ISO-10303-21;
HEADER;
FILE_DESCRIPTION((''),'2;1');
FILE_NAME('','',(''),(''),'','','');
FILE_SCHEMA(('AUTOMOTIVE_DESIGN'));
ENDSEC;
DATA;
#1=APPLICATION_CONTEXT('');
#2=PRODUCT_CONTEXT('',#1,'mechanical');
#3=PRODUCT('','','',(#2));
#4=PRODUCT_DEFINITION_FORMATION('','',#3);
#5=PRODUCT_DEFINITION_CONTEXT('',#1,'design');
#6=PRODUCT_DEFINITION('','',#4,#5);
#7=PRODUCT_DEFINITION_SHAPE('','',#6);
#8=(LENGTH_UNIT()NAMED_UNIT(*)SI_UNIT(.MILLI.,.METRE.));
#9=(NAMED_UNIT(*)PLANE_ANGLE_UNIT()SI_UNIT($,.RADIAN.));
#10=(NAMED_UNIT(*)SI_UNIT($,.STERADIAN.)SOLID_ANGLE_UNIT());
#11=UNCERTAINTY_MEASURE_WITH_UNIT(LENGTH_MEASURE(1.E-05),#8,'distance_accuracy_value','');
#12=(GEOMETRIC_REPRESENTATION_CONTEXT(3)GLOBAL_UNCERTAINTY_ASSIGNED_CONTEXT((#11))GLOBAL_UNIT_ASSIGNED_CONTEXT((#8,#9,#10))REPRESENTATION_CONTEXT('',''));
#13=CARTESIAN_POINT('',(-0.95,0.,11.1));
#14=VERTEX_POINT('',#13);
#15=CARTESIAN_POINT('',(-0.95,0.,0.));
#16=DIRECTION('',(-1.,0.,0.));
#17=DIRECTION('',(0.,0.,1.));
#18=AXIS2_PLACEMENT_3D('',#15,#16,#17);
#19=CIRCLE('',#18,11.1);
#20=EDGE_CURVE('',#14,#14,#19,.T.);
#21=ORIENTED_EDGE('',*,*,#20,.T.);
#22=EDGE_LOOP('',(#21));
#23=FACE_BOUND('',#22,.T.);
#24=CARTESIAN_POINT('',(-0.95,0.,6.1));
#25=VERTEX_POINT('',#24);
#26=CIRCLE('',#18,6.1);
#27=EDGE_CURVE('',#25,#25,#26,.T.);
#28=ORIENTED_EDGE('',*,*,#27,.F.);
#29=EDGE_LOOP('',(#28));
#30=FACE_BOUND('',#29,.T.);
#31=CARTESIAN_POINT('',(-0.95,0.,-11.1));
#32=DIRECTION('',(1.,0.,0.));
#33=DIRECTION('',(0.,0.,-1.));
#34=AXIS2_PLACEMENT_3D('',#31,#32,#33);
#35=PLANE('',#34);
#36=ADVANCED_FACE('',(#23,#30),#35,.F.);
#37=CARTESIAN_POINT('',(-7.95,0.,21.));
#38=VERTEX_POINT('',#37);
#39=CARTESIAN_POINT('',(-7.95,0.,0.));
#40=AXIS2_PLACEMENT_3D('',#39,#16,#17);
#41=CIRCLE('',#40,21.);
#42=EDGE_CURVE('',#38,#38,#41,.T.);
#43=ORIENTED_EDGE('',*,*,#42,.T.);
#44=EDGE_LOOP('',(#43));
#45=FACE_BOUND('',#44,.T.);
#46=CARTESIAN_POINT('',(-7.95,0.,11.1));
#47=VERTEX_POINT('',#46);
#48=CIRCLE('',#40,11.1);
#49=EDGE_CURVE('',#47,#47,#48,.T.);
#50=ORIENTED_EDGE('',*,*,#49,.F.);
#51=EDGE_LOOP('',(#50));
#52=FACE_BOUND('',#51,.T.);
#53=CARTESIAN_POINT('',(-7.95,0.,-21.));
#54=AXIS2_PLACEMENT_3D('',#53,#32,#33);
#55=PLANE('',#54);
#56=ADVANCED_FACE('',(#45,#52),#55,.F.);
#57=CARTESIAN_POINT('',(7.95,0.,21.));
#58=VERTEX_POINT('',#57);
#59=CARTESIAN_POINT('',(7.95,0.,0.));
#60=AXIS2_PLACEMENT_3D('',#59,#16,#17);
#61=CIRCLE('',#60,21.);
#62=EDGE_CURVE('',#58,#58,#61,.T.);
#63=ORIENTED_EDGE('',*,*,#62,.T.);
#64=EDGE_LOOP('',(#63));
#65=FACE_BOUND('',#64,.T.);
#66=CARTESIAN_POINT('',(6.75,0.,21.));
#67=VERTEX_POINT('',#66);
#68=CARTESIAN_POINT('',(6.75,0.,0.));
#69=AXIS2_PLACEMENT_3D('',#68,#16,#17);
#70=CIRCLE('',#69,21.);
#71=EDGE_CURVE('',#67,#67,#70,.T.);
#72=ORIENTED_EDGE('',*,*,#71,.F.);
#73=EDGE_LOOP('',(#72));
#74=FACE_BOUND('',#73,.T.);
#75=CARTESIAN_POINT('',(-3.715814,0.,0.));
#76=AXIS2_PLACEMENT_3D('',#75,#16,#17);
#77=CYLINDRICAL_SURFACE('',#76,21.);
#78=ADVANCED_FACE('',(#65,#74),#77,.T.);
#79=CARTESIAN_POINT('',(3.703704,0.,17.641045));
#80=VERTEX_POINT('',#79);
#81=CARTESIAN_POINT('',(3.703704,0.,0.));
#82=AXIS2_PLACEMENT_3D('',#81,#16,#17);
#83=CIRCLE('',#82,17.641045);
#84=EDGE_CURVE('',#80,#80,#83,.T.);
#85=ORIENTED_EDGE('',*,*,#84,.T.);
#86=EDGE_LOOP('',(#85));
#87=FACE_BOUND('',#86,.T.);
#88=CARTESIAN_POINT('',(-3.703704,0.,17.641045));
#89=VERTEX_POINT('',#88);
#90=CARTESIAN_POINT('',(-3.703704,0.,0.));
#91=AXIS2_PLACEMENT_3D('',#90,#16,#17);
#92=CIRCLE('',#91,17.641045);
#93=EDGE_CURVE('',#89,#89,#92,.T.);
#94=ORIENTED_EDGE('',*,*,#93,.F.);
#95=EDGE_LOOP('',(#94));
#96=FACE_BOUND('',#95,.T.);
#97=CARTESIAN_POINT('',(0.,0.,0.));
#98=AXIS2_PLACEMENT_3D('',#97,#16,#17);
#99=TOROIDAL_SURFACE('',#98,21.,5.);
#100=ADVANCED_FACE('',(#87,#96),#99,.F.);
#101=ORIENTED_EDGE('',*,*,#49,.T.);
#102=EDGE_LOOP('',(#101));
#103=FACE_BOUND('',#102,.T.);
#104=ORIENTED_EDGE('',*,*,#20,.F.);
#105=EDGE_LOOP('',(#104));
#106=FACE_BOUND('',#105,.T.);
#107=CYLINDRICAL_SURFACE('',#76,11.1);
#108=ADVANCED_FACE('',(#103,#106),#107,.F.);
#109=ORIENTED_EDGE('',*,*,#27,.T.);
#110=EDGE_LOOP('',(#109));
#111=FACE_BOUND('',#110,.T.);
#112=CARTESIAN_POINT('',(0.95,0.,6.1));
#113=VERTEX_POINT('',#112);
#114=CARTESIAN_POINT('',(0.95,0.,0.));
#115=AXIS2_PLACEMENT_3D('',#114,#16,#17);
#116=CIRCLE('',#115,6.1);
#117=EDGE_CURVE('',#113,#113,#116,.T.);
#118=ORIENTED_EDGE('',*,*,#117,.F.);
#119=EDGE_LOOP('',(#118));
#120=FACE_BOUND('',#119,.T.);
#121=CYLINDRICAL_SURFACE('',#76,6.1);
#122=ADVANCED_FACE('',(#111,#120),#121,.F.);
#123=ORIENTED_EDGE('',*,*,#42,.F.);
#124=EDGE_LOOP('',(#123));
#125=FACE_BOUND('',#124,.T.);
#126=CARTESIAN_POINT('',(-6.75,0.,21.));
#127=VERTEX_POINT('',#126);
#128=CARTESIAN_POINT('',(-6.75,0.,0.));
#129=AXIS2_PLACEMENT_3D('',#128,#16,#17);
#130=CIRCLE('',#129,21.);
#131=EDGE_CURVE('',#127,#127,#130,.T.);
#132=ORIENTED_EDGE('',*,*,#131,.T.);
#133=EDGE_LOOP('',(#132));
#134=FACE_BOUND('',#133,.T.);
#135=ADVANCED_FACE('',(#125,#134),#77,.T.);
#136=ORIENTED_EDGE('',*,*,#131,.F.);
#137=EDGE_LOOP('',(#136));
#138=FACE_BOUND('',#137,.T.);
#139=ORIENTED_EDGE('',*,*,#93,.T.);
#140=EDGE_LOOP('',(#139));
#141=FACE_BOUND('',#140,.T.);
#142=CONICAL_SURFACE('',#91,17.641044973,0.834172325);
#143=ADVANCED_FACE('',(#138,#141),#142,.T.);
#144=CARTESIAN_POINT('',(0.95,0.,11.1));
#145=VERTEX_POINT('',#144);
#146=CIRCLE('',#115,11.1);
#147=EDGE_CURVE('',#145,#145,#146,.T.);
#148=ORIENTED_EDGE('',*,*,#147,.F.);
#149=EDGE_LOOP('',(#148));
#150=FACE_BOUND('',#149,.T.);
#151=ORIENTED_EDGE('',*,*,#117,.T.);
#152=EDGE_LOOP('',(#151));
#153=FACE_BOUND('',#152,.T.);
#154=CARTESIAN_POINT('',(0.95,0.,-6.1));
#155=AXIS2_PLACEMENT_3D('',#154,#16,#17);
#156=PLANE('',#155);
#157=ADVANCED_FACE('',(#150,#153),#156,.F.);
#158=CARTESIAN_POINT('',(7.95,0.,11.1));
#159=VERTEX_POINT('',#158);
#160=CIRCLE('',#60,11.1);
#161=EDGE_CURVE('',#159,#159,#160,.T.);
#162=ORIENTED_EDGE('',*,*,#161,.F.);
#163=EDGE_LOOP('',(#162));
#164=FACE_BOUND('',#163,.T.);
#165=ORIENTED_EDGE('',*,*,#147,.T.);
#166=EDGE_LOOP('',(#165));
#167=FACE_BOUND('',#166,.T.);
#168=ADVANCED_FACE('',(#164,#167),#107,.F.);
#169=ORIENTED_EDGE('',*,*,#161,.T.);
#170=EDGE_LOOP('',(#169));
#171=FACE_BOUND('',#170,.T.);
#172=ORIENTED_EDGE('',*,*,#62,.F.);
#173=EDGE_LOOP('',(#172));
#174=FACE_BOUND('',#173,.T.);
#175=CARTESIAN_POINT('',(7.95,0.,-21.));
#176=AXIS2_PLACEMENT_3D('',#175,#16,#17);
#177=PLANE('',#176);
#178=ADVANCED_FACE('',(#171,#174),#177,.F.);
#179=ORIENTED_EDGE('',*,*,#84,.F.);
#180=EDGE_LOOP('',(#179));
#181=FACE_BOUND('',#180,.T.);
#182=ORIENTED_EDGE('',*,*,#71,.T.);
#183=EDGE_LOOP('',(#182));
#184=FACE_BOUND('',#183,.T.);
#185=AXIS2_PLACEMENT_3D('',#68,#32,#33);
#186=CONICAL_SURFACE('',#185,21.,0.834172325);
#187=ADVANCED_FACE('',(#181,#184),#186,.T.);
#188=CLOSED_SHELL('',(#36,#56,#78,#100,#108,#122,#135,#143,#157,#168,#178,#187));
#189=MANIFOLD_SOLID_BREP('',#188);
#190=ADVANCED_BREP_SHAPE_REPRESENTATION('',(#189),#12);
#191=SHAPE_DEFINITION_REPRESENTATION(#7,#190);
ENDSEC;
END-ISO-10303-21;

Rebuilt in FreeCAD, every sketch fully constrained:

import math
import FreeCAD as App
import Part
import Sketcher
from FreeCAD import Vector

doc = App.newDocument("Part")
body = doc.addObject("PartDesign::Body", "Body")

# Sketch on XZ plane
sketch1 = body.newObject("Sketcher::SketchObject", "Sketch")
sketch1.AttachmentSupport = (doc.getObject("XZ_Plane"), [""])
sketch1.MapMode = "FlatFace"
sketch1.addGeometry(Part.LineSegment(Vector(-8, -11.1, 0), Vector(-0.9, -11.1, 0)), False)
sketch1.addGeometry(Part.LineSegment(Vector(-0.9, -11.1, 0), Vector(-0.9, -6.1, 0)), False)
sketch1.addGeometry(Part.LineSegment(Vector(-0.9, -6.1, 0), Vector(0.9, -6.1, 0)), False)
sketch1.addGeometry(Part.LineSegment(Vector(0.9, -6.1, 0), Vector(0.9, -11.1, 0)), False)
sketch1.addGeometry(Part.LineSegment(Vector(0.9, -11.1, 0), Vector(8, -11.1, 0)), False)
sketch1.addGeometry(Part.LineSegment(Vector(8, -11.1, 0), Vector(8, -21, 0)), False)
sketch1.addGeometry(Part.LineSegment(Vector(8, -21, 0), Vector(6.8, -21, 0)), False)
sketch1.addGeometry(Part.LineSegment(Vector(6.8, -21, 0), Vector(3.7, -17.6, 0)), False)
sketch1.addGeometry(Part.ArcOfCircle(Part.Circle(Vector(0, -21, 0), Vector(0, 0, 1), 5), math.radians(42), math.radians(138)), False)
sketch1.addGeometry(Part.LineSegment(Vector(-3.7, -17.6, 0), Vector(-6.8, -21, 0)), False)
sketch1.addGeometry(Part.LineSegment(Vector(-6.8, -21, 0), Vector(-8, -21, 0)), False)
sketch1.addGeometry(Part.LineSegment(Vector(-8, -21, 0), Vector(-8, -11.1, 0)), False)
sketch1.addConstraint(Sketcher.Constraint("Coincident", 0, 2, 1, 1))
sketch1.addConstraint(Sketcher.Constraint("Coincident", 1, 2, 2, 1))
sketch1.addConstraint(Sketcher.Constraint("Coincident", 2, 2, 3, 1))
sketch1.addConstraint(Sketcher.Constraint("Coincident", 3, 2, 4, 1))
sketch1.addConstraint(Sketcher.Constraint("Coincident", 4, 2, 5, 1))
sketch1.addConstraint(Sketcher.Constraint("Coincident", 5, 2, 6, 1))
sketch1.addConstraint(Sketcher.Constraint("Coincident", 6, 2, 7, 1))
sketch1.addConstraint(Sketcher.Constraint("Tangent", 7, 2, 8, 1))
sketch1.addConstraint(Sketcher.Constraint("Tangent", 8, 2, 9, 1))
sketch1.addConstraint(Sketcher.Constraint("Coincident", 9, 2, 10, 1))
sketch1.addConstraint(Sketcher.Constraint("Coincident", 10, 2, 11, 1))
sketch1.addConstraint(Sketcher.Constraint("Coincident", 11, 2, 0, 1))
sketch1.addConstraint(Sketcher.Constraint("Horizontal", 0))
sketch1.addConstraint(Sketcher.Constraint("Vertical", 1))
sketch1.addConstraint(Sketcher.Constraint("Horizontal", 2))
sketch1.addConstraint(Sketcher.Constraint("Vertical", 3))
sketch1.addConstraint(Sketcher.Constraint("Horizontal", 4))
sketch1.addConstraint(Sketcher.Constraint("Vertical", 5))
sketch1.addConstraint(Sketcher.Constraint("Horizontal", 6))
sketch1.addConstraint(Sketcher.Constraint("Horizontal", 10))
sketch1.addConstraint(Sketcher.Constraint("Vertical", 11))
sketch1.addConstraint(Sketcher.Constraint("Symmetric", 0, 2, 3, 2, -2))
sketch1.addConstraint(Sketcher.Constraint("Symmetric", 7, 2, 8, 2, -2))
sketch1.addConstraint(Sketcher.Constraint("Symmetric", 5, 2, 10, 2, -2))
sketch1.addConstraint(Sketcher.Constraint("Horizontal", 8, 3, 5, 2))
sketch1.addConstraint(Sketcher.Constraint("Radius", 8, 5.0))
sketch1.addConstraint(Sketcher.Constraint("DistanceX", 0, 1, 0, 2, 7.0))
sketch1.addConstraint(Sketcher.Constraint("DistanceY", 1, 1, 1, 2, 5.0))
sketch1.addConstraint(Sketcher.Constraint("DistanceX", 2, 1, 2, 2, 1.9))
sketch1.addConstraint(Sketcher.Constraint("DistanceX", 6, 2, 6, 1, 1.2))
sketch1.addConstraint(Sketcher.Constraint("DistanceY", 5, 2, 5, 1, 9.9))
sketch1.addConstraint(Sketcher.Constraint("DistanceY", 8, 3, -1, 1, 21.0))
revolution = body.newObject("PartDesign::Revolution", "Revolution")
revolution.Profile = sketch1
revolution.ReferenceAxis = (sketch1, ["H_Axis"])
revolution.Angle = 360

doc.recompute()
